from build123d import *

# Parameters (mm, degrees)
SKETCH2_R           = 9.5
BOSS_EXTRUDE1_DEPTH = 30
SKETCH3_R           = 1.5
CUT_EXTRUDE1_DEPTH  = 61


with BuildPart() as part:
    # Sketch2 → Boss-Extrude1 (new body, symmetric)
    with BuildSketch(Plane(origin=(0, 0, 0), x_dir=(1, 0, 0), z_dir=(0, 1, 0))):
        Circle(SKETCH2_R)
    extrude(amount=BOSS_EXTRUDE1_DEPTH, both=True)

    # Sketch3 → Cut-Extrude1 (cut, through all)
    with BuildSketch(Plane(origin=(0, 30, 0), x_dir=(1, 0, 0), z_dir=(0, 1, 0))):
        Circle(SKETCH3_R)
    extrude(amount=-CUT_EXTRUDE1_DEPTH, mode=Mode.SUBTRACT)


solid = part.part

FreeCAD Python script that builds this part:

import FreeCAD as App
import Part
import Sketcher
Q = App.Units.Quantity

doc = App.newDocument("Part")
body = doc.addObject("PartDesign::Body", "Body")

sketch1 = doc.addObject("Sketcher::SketchObject", "Sketch")
body.addObject(sketch1)
sketch1.AttachmentSupport = (doc.XZ_Plane, [""])
sketch1.MapMode = "FlatFace"
sketch1.addGeometry(Part.Circle(App.Vector(0, 0, 0), App.Vector(0, 0, 1), 10), False)
sketch1.addConstraint([
    Sketcher.Constraint("Coincident", 0, 3, -1, 1),
    Sketcher.Constraint("Diameter", 0, Q("19 mm")),
])
pad1 = doc.addObject("PartDesign::Pad", "Pad")
body.addObject(pad1)
pad1.Profile = sketch1
pad1.Length = 60
pad1.Midplane = True

sketch2 = doc.addObject("Sketcher::SketchObject", "Sketch001")
body.addObject(sketch2)
sketch2.AttachmentSupport = (doc.XZ_Plane, [""])
sketch2.MapMode = "FlatFace"
sketch2.AttachmentOffset = App.Placement(App.Vector(0, 0, -30), App.Rotation())
sketch2.addGeometry(Part.Circle(App.Vector(0, 0, 0), App.Vector(0, 0, 1), 1.5), False)
sketch2.addConstraint([
    Sketcher.Constraint("Coincident", 0, 3, -1, 1),
    Sketcher.Constraint("Diameter", 0, Q("3 mm")),
])
pocket1 = doc.addObject("PartDesign::Pocket", "Pocket")
body.addObject(pocket1)
pocket1.Profile = sketch2
pocket1.Type = "ThroughAll"
pocket1.Reversed = True

doc.recompute()
